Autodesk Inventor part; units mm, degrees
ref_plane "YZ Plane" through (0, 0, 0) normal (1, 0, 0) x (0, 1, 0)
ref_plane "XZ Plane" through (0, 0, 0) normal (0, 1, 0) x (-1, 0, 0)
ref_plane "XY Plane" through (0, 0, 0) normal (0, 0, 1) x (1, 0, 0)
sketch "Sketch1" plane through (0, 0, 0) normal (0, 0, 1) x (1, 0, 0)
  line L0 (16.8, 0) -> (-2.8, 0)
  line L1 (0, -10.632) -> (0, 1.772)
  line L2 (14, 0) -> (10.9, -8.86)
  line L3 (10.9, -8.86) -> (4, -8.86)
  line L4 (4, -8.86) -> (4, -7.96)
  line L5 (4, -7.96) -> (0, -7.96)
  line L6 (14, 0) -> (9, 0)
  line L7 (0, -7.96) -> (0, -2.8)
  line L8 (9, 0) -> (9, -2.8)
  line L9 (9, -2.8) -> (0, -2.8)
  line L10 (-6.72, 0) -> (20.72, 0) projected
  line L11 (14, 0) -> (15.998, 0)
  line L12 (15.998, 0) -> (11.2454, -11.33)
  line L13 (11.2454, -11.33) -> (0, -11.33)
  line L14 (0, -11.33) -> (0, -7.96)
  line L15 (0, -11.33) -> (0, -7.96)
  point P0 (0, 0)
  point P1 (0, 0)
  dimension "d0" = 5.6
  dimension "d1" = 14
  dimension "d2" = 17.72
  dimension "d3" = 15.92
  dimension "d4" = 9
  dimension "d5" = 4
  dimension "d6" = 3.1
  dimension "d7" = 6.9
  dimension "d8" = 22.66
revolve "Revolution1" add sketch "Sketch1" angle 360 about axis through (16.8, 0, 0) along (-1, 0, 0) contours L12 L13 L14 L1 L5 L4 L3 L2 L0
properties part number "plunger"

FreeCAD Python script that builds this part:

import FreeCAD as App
import Part
import Sketcher

V = App.Vector


def add_polygon(sketch, points):
    """Adds a closed chain of lines whose ends are joined by coincident constraints."""
    first, n = sketch.GeometryCount, len(points)
    for a, b in zip(points, points[1:] + points[:1]):
        sketch.addGeometry(Part.LineSegment(App.Vector(*a, 0), App.Vector(*b, 0)), False)
    for i in range(n):
        sketch.addConstraint(Sketcher.Constraint("Coincident", first + i, 2, first + (i + 1) % n, 1))

doc = App.newDocument("Part")
body = doc.addObject("PartDesign::Body", "Body")

sketch1 = doc.addObject("Sketcher::SketchObject", "Sketch")
body.addObject(sketch1)
sketch1.AttachmentSupport = (doc.XY_Plane, [""])
sketch1.MapMode = "FlatFace"
add_polygon(sketch1, [(11.2454, -11.33), (15.998, 0), (14, 0), (10.9, -8.86), (4, -8.86), (4, -7.96), (0, -7.96), (0, -11.33)])
sketch1.addConstraint([
    Sketcher.Constraint("Horizontal", 1),
    Sketcher.Constraint("Horizontal", 3),
    Sketcher.Constraint("Vertical", 4),
    Sketcher.Constraint("Horizontal", 5),
    Sketcher.Constraint("Vertical", 6),
    Sketcher.Constraint("Horizontal", 7),
    Sketcher.Constraint("PointOnObject", 0, 2, -1),
    Sketcher.Constraint("PointOnObject", 5, 2, -2),
    Sketcher.Constraint("DistanceX", 5, 2, 5, 1, 4.0),
    Sketcher.Constraint("DistanceX", 3, 2, 3, 1, 6.9),
    Sketcher.Constraint("DistanceX", -1, 1, 1, 2, 14.0),
    Sketcher.Constraint("DistanceY", 4, 1, 4, 2, 0.9),
    Sketcher.Constraint("DistanceY", 6, 2, 6, 1, 3.37),
    Sketcher.Constraint("DistanceX", 1, 2, 1, 1, 1.998),
    Sketcher.Constraint("DistanceY", 2, 2, -1, 1, 8.86),
    Sketcher.Constraint("DistanceX", 7, 1, 7, 2, 11.2454),
])
revolution = doc.addObject("PartDesign::Revolution", "Revolution")
body.addObject(revolution)
revolution.Profile = sketch1
revolution.ReferenceAxis = (sketch1, ["H_Axis"])
revolution.Angle = 360

doc.recompute()
